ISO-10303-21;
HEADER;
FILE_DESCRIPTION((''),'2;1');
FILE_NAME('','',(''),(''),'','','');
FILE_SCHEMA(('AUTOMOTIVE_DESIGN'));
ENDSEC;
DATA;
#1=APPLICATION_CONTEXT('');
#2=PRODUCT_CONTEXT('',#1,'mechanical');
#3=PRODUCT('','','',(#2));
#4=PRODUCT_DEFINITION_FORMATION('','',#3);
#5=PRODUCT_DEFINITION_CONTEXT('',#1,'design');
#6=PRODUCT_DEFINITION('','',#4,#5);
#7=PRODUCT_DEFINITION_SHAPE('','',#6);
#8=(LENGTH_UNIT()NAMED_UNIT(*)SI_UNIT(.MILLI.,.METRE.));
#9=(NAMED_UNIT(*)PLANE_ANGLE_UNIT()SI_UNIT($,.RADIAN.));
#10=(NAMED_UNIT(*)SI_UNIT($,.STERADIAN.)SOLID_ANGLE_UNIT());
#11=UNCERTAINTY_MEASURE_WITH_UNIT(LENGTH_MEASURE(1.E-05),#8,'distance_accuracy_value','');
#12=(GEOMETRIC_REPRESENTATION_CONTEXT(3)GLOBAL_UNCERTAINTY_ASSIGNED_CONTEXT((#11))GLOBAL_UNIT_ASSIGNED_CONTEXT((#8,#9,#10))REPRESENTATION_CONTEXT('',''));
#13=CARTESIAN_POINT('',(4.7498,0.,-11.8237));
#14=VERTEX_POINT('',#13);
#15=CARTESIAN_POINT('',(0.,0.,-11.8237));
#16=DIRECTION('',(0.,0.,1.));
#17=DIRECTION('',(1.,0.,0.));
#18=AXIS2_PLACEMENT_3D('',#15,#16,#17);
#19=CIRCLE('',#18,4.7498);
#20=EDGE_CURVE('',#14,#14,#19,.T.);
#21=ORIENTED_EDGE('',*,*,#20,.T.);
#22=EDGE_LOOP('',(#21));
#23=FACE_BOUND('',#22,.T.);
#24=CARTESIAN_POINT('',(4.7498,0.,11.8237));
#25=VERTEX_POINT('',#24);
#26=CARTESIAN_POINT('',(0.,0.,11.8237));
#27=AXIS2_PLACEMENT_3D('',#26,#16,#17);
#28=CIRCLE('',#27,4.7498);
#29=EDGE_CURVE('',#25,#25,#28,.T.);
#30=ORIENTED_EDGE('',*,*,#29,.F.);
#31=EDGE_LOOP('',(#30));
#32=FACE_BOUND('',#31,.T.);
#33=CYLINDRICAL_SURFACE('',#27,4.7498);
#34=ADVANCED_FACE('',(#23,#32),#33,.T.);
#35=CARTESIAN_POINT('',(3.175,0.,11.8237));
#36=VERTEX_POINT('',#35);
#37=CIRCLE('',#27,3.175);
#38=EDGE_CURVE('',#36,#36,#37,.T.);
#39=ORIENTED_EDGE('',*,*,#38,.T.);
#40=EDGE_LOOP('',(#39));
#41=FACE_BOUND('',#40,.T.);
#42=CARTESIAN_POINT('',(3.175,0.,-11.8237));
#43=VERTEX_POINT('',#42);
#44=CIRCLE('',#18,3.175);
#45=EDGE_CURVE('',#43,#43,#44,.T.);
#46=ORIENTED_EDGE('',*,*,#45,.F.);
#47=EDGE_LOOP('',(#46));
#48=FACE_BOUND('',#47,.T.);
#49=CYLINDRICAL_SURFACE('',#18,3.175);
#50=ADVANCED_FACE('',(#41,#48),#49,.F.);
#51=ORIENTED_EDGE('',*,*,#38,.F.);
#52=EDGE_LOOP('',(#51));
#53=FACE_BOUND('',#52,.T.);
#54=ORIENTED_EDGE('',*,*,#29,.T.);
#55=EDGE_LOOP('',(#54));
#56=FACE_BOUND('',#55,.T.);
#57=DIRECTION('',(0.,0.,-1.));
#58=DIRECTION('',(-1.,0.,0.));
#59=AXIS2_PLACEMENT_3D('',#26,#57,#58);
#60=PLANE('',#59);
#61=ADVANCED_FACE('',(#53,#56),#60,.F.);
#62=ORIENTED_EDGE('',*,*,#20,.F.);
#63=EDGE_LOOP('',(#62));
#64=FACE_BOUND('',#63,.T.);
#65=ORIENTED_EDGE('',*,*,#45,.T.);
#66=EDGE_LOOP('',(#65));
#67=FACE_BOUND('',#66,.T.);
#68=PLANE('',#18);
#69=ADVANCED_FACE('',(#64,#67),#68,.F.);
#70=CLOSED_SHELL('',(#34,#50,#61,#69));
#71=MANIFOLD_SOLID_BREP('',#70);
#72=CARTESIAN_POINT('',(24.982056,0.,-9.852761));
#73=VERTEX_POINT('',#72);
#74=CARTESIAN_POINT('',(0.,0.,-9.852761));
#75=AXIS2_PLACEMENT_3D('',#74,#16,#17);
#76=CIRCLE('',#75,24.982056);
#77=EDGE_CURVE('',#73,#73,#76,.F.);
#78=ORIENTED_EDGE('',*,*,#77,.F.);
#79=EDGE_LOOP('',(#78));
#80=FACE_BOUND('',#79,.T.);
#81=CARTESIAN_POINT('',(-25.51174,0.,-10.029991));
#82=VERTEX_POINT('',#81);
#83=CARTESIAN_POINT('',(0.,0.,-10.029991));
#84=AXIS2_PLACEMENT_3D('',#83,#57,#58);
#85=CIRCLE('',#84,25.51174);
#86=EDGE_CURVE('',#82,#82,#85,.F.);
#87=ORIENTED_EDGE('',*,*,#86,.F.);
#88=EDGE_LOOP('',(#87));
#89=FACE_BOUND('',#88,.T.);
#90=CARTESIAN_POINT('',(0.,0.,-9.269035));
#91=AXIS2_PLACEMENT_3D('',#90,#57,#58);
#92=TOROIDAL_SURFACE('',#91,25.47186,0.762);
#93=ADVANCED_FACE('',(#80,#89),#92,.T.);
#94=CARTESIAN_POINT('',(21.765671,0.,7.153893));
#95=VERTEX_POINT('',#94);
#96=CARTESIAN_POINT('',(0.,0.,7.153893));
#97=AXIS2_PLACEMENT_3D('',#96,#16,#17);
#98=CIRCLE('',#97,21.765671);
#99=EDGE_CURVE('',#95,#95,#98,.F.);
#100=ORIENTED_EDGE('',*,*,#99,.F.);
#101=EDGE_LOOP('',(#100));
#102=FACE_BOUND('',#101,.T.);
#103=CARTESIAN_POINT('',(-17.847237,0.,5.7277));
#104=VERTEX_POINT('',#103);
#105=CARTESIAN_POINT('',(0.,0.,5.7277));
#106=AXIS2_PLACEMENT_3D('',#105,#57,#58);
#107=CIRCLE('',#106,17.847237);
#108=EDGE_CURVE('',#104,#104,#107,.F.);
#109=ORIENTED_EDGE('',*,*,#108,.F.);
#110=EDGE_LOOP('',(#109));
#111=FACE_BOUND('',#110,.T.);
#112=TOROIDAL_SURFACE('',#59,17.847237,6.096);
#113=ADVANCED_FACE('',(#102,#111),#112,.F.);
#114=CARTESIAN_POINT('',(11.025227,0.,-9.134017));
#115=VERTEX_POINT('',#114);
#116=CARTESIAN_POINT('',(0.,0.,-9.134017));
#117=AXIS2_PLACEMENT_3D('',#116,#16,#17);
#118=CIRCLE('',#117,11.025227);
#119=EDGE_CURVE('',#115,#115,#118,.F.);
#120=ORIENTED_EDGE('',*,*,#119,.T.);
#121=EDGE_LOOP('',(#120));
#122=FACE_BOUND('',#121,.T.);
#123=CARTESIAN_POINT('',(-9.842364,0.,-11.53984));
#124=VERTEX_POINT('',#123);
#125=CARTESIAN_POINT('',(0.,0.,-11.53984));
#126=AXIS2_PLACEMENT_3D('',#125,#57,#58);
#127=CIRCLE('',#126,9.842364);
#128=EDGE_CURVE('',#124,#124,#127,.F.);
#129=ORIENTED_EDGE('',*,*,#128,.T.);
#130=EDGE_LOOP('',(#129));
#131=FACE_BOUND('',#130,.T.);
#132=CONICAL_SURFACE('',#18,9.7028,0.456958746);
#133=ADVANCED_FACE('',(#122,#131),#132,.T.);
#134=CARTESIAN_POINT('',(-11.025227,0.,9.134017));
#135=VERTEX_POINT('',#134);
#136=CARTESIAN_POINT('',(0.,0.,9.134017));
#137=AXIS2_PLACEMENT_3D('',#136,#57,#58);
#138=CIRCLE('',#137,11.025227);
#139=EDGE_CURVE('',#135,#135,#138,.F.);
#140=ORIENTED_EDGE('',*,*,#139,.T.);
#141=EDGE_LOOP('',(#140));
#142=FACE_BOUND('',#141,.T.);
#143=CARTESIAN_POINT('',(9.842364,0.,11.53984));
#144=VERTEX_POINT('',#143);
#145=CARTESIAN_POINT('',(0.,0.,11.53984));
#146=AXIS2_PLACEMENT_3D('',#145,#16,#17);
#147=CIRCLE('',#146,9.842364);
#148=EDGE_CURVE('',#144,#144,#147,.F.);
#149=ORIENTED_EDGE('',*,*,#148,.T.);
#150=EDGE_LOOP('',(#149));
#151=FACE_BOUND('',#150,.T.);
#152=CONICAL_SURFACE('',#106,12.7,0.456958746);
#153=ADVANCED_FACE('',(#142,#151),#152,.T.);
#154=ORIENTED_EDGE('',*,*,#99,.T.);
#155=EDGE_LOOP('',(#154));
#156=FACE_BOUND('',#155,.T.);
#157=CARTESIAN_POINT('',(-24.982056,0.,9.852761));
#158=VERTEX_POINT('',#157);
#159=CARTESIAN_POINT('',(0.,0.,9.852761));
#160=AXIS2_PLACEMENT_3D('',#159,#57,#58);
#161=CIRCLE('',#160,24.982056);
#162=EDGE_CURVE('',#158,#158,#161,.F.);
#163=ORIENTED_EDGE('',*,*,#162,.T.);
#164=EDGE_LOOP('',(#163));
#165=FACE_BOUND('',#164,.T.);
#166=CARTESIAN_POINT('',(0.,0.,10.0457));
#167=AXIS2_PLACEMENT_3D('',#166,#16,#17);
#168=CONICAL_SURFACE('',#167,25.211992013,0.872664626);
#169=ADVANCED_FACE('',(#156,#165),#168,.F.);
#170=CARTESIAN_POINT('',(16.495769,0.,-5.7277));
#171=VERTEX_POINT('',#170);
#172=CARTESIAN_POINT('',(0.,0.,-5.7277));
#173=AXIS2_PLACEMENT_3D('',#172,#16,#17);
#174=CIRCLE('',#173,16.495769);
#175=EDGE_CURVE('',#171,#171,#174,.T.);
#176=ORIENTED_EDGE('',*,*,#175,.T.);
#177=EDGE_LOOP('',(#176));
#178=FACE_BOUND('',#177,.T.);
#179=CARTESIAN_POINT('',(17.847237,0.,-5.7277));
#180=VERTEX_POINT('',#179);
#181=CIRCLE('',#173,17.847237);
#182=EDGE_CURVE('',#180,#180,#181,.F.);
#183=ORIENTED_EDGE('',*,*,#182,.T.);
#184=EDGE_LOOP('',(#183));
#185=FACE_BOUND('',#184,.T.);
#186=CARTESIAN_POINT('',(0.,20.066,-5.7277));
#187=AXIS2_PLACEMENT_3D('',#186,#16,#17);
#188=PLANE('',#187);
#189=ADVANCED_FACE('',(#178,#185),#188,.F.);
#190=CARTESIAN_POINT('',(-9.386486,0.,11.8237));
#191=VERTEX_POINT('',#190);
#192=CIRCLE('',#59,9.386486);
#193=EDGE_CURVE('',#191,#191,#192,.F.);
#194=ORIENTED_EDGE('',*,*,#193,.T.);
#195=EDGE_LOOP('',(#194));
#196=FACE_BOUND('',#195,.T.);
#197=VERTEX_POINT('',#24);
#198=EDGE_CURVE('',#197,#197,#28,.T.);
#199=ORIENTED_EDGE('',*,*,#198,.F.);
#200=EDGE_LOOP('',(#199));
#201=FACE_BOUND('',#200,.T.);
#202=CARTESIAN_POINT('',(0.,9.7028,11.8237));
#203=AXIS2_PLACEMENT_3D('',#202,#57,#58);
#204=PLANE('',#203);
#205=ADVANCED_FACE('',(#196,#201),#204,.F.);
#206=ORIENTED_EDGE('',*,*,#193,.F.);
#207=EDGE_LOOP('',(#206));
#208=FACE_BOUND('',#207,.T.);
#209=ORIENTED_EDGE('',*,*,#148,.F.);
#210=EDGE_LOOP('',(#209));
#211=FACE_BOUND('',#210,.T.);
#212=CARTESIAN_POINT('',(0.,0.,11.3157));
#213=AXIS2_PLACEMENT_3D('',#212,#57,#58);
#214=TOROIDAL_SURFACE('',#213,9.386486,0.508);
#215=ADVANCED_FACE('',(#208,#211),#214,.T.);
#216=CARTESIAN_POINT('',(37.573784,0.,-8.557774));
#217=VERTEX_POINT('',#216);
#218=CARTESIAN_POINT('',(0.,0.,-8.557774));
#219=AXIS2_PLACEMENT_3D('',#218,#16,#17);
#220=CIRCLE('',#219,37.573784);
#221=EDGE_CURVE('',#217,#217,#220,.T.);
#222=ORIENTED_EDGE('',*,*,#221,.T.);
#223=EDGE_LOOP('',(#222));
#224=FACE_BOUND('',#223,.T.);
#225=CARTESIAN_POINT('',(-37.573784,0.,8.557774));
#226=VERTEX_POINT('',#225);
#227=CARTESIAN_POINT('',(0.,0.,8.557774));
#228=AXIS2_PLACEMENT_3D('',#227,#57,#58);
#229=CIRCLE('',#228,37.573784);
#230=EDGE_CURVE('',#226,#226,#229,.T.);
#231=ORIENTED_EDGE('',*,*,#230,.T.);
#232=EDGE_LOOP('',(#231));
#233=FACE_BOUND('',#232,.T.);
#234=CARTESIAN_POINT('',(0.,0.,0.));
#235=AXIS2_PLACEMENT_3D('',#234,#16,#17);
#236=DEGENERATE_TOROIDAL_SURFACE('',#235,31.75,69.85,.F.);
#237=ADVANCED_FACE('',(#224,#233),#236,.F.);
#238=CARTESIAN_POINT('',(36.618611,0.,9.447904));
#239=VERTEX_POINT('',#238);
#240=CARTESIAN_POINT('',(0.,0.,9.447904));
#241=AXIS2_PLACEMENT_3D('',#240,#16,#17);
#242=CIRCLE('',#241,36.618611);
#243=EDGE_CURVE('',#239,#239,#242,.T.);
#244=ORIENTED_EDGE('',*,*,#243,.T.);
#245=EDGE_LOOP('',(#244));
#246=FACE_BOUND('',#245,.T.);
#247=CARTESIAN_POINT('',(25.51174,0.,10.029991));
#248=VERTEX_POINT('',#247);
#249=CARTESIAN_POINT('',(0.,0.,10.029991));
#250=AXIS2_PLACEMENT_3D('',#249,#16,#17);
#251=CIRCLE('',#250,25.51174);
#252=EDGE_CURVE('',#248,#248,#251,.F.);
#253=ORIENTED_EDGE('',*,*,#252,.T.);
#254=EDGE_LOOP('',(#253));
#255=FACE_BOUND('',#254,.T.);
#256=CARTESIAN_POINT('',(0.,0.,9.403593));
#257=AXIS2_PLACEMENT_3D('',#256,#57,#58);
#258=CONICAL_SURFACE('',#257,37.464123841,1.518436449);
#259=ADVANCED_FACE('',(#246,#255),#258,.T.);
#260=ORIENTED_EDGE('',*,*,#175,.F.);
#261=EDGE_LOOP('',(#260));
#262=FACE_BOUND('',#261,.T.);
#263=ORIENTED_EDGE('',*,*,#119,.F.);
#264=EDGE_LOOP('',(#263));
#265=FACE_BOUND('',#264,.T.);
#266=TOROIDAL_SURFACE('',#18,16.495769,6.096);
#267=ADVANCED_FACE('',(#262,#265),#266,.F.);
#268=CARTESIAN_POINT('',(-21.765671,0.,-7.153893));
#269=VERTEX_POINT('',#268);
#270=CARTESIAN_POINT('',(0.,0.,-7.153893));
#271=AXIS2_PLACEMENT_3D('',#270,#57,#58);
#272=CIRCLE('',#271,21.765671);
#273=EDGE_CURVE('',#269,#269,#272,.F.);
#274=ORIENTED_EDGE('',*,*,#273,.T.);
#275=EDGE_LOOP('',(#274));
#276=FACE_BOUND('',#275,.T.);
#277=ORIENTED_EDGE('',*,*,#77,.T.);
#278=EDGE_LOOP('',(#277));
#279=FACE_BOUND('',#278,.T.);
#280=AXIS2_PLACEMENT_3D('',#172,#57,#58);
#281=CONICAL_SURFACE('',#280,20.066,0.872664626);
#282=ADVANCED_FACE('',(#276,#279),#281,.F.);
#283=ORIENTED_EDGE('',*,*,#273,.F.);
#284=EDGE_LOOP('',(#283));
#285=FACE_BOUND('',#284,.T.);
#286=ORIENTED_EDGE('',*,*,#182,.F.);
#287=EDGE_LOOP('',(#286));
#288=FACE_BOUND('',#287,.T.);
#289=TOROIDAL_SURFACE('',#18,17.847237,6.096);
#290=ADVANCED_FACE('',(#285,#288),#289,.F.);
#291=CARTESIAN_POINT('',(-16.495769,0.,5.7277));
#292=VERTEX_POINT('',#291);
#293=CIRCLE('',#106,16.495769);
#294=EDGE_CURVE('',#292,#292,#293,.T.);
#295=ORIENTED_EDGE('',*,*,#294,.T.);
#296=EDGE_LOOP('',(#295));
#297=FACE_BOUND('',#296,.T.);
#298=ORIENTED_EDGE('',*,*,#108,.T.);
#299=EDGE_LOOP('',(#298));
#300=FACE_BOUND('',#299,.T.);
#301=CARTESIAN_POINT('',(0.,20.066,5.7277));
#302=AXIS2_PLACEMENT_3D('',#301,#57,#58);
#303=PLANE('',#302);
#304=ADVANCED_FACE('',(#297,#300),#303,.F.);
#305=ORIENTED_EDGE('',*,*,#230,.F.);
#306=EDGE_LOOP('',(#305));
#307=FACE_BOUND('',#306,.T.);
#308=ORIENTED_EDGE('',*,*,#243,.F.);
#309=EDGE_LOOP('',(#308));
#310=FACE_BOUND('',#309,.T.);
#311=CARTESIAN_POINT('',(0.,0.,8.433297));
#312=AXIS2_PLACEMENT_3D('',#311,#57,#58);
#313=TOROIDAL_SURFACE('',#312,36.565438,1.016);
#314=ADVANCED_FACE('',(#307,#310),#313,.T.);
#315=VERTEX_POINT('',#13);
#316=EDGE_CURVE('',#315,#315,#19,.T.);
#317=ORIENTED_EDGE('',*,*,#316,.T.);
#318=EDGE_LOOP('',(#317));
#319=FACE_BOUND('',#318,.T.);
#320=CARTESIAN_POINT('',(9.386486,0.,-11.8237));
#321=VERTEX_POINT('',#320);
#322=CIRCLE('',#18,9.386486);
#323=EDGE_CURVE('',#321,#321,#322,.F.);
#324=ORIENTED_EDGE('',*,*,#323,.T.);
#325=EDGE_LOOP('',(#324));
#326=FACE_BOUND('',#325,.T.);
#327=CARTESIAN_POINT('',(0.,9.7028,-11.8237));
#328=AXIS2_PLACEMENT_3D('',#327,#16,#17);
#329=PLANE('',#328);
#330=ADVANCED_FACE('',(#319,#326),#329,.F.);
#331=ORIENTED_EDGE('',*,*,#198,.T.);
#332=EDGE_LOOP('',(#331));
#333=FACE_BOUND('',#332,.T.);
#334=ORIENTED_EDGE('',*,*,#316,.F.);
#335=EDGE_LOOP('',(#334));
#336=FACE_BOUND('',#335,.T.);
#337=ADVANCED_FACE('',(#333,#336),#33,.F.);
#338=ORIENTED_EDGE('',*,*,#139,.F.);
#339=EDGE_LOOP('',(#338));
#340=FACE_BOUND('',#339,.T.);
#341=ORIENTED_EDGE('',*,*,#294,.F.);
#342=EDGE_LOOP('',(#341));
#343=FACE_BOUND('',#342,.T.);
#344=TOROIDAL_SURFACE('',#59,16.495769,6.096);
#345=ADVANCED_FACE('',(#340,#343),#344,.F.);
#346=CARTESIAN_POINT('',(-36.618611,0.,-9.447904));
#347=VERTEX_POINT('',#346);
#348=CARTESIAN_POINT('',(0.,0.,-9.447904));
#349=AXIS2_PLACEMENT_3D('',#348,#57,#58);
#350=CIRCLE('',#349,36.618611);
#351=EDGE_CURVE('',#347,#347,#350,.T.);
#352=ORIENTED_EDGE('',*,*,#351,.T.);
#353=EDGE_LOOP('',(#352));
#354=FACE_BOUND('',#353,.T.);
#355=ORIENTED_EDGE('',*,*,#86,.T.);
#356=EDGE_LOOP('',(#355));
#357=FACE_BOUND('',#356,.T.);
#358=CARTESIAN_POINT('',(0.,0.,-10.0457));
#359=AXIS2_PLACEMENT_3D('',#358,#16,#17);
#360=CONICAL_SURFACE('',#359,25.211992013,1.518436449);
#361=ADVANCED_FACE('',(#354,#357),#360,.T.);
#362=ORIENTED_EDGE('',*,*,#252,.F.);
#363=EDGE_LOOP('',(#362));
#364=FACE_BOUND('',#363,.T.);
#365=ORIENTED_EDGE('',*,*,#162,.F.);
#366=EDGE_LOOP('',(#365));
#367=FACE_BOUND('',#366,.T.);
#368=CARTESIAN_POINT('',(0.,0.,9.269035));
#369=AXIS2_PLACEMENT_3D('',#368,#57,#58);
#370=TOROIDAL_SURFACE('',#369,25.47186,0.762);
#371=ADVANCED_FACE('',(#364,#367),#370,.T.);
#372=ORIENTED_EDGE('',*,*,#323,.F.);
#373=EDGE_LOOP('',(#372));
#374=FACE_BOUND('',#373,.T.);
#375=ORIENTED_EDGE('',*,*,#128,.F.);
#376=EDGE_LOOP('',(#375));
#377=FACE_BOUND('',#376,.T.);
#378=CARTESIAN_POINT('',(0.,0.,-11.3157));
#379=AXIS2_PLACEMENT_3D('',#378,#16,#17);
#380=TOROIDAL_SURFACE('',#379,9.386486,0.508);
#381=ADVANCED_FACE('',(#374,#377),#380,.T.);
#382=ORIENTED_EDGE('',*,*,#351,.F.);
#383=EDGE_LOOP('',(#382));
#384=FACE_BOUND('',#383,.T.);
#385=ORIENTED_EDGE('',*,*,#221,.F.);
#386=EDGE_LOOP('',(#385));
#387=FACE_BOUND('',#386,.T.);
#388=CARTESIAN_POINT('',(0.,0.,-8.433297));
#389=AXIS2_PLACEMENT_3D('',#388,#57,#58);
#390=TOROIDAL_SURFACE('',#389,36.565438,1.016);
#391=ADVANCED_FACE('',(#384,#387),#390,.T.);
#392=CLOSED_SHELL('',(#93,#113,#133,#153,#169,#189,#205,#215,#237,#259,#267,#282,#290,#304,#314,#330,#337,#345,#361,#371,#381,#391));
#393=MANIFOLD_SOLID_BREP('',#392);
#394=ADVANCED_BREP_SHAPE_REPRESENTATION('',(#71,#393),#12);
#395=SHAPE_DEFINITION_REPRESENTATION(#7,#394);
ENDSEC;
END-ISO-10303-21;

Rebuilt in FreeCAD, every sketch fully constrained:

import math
import FreeCAD as App
import Part
import Sketcher
from FreeCAD import Vector
Q = App.Units.Quantity


def edges_at(feature, points):
    """Names of the edges that pass closest to the given points."""
    edges = feature.Shape.Edges
    near = lambda p: min(range(len(edges)), key=lambda i: edges[i].distToShape(Part.Vertex(*p))[0])
    return sorted({f"Edge{near(p) + 1}" for p in points})


def add_polygon(sketch, points):
    """Adds a closed chain of lines whose ends are joined by coincident constraints."""
    first, n = sketch.GeometryCount, len(points)
    for a, b in zip(points, points[1:] + points[:1]):
        sketch.addGeometry(Part.LineSegment(App.Vector(*a, 0), App.Vector(*b, 0)), False)
    for i in range(n):
        sketch.addConstraint(Sketcher.Constraint("Coincident", first + i, 2, first + (i + 1) % n, 1))

doc = App.newDocument("Part")
body = doc.addObject("PartDesign::Body", "Body")

sketch1 = body.newObject("Sketcher::SketchObject", "Sketch")
sketch1.AttachmentSupport = (doc.getObject("YZ_Plane"), [""])
sketch1.MapMode = "FlatFace"
sketch1.addGeometry([
    Part.LineSegment(Vector(20.066, -5.7277, 0), Vector(25.211992, -10.0457, 0)),
    Part.LineSegment(Vector(25.211992, -10.0457, 0), Vector(37.464124, -9.403593, 0)),
    Part.ArcOfCircle(Part.Circle(Vector(-31.75, 0, 0), Vector(0, 0, 1), 69.85), math.radians(-7.736966), math.radians(7.736966)),
    Part.LineSegment(Vector(37.464124, 9.403593, 0), Vector(25.211992, 10.0457, 0)),
    Part.LineSegment(Vector(25.211992, 10.0457, 0), Vector(20.066, 5.7277, 0)),
    Part.LineSegment(Vector(20.066, 5.7277, 0), Vector(12.7, 5.7277, 0)),
    Part.LineSegment(Vector(12.7, 5.7277, 0), Vector(9.7028, 11.8237, 0)),
    Part.LineSegment(Vector(9.7028, 11.8237, 0), Vector(0, 11.8237, 0)),
    Part.LineSegment(Vector(0, 11.8237, 0), Vector(0, -11.8237, 0)),
    Part.LineSegment(Vector(0, -11.8237, 0), Vector(9.7028, -11.8237, 0)),
    Part.LineSegment(Vector(9.7028, -11.8237, 0), Vector(12.7, -5.7277, 0)),
    Part.LineSegment(Vector(12.7, -5.7277, 0), Vector(20.066, -5.7277, 0)),
], False)
sketch1.addConstraint([
    Sketcher.Constraint("Coincident", 0, 2, 1, 1),
    Sketcher.Constraint("Coincident", 1, 2, 2, 1),
    Sketcher.Constraint("Coincident", 2, 2, 3, 1),
    Sketcher.Constraint("Coincident", 3, 2, 4, 1),
    Sketcher.Constraint("Coincident", 4, 2, 5, 1),
    Sketcher.Constraint("Coincident", 5, 2, 6, 1),
    Sketcher.Constraint("Coincident", 6, 2, 7, 1),
    Sketcher.Constraint("Coincident", 7, 2, 8, 1),
    Sketcher.Constraint("Coincident", 8, 2, 9, 1),
    Sketcher.Constraint("Coincident", 9, 2, 10, 1),
    Sketcher.Constraint("Coincident", 10, 2, 11, 1),
    Sketcher.Constraint("Coincident", 11, 2, 0, 1),
    Sketcher.Constraint("Horizontal", 5),
    Sketcher.Constraint("Horizontal", 7),
    Sketcher.Constraint("Vertical", 8),
    Sketcher.Constraint("Horizontal", 9),
    Sketcher.Constraint("Horizontal", 11),
    Sketcher.Constraint("Symmetric", 7, 2, 8, 2, -1, 1),
    Sketcher.Constraint("Symmetric", 1, 2, 2, 2, -1),
    Sketcher.Constraint("Symmetric", 0, 2, 3, 2, -1),
    Sketcher.Constraint("Symmetric", 5, 2, 10, 2, -1),
    Sketcher.Constraint("Vertical", 6, 2, 9, 2),
    Sketcher.Constraint("Vertical", 4, 2, 11, 2),
    Sketcher.Constraint("Radius", 2, Q("2.75 in")),
    Sketcher.Constraint("Angle", 0, Q("-40 deg")),
    Sketcher.Constraint("Angle", 1, Q("3 deg")),
    Sketcher.Constraint("DistanceX", 5, 2, 5, 1, Q("0.29 in")),
    Sketcher.Constraint("DistanceX", -1, 1, 5, 2, Q("0.5 in")),
    Sketcher.Constraint("DistanceX", 7, 2, 7, 1, Q("0.382 in")),
    Sketcher.Constraint("DistanceY", 8, 2, 8, 1, Q("0.931 in")),
    Sketcher.Constraint("DistanceX", 2, 3, -1, 1, Q("1.25 in")),
    Sketcher.Constraint("DistanceY", 4, 2, 3, 2, Q("0.17 in")),
    Sketcher.Constraint("DistanceY", 5, 2, 6, 2, Q("0.24 in")),
])
revolution = body.newObject("PartDesign::Revolution", "Revolution")
revolution.Profile = sketch1
revolution.ReferenceAxis = (sketch1, ["V_Axis"])
revolution.Angle = 360

sketch2 = body.newObject("Sketcher::SketchObject", "Sketch001")
sketch2.AttachmentSupport = (doc.getObject("YZ_Plane"), [""])
sketch2.MapMode = "FlatFace"
add_polygon(sketch2, [(4.7498, 11.8237), (0, 11.8237), (0, -11.8237), (4.7498, -11.8237)])
sketch2.addConstraint([
    Sketcher.Constraint("Horizontal", 0),
    Sketcher.Constraint("Vertical", 1),
    Sketcher.Constraint("Horizontal", 2),
    Sketcher.Constraint("Vertical", 3),
    Sketcher.Constraint("Symmetric", 0, 2, 1, 2, -1, 1),
    Sketcher.Constraint("DistanceX", 0, 2, 0, 1, Q("0.187 in")),
    Sketcher.Constraint("DistanceY", 1, 2, 1, 1, Q("0.931 in")),
])
groove = body.newObject("PartDesign::Groove", "Groove")
groove.Profile = sketch2
groove.ReferenceAxis = (sketch2, ["V_Axis"])
groove.Angle = 360
doc.recompute()

fillet = body.newObject("PartDesign::Fillet", "Fillet")
fillet.Base = (groove, edges_at(groove, [(0, -37.464, -9.404), (0, -37.464, 9.404)]))
fillet.Radius = Q("0.04 in")
doc.recompute()

fillet2 = body.newObject("PartDesign::Fillet", "Fillet001")
fillet2.Base = (fillet, edges_at(fillet, [
    (0, -20.066, 5.728),
    (0, -12.7, 5.728),
    (0, -12.7, -5.728),
    (0, -20.066, -5.728),
]))
fillet2.Radius = Q("0.24 in")
doc.recompute()

fillet3 = body.newObject("PartDesign::Fillet", "Fillet002")
fillet3.Base = (fillet2, edges_at(fillet2, [(0, -25.212, -10.046), (0, -25.212, 10.046)]))
fillet3.Radius = Q("0.03 in")
doc.recompute()

fillet4 = body.newObject("PartDesign::Fillet", "Fillet003")
fillet4.Base = (fillet3, edges_at(fillet3, [(0, -9.703, 11.824), (0, -9.703, -11.824)]))
fillet4.Radius = Q("0.02 in")
body2 = doc.addObject("PartDesign::Body", "Body001")

sketch3 = body2.newObject("Sketcher::SketchObject", "Sketch002")
sketch3.AttachmentSupport = (doc.getObject("YZ_Plane001"), [""])
sketch3.MapMode = "FlatFace"
add_polygon(sketch3, [(4.7498, 11.8237), (0, 11.8237), (0, -11.8237), (4.7498, -11.8237)])
sketch3.addConstraint([
    Sketcher.Constraint("Horizontal", 0),
    Sketcher.Constraint("Vertical", 1),
    Sketcher.Constraint("Horizontal", 2),
    Sketcher.Constraint("Vertical", 3),
    Sketcher.Constraint("Symmetric", 0, 2, 1, 2, -1, 1),
    Sketcher.Constraint("DistanceX", 0, 2, 0, 1, Q("0.187 in")),
    Sketcher.Constraint("DistanceY", 1, 2, 1, 1, Q("0.931 in")),
])
revolution2 = body2.newObject("PartDesign::Revolution", "Revolution001")
revolution2.Profile = sketch3
revolution2.ReferenceAxis = (sketch3, ["V_Axis"])
revolution2.Angle = 360

sketch4 = body2.newObject("Sketcher::SketchObject", "Sketch003")
sketch4.AttachmentSupport = (doc.getObject("XY_Plane001"), [""])
sketch4.MapMode = "FlatFace"
sketch4.addGeometry(Part.Circle(Vector(0, 0, 0), Vector(0, 0, 1), 3.175), False)
sketch4.addConstraint([
    Sketcher.Constraint("Coincident", 0, 3, -1, 1),
    Sketcher.Constraint("Diameter", 0, Q("0.25 in")),
])
pocket1 = body2.newObject("PartDesign::Pocket", "Pocket")
pocket1.Profile = sketch4
pocket1.Type = "ThroughAll"
pocket1.Midplane = True

doc.recompute()
